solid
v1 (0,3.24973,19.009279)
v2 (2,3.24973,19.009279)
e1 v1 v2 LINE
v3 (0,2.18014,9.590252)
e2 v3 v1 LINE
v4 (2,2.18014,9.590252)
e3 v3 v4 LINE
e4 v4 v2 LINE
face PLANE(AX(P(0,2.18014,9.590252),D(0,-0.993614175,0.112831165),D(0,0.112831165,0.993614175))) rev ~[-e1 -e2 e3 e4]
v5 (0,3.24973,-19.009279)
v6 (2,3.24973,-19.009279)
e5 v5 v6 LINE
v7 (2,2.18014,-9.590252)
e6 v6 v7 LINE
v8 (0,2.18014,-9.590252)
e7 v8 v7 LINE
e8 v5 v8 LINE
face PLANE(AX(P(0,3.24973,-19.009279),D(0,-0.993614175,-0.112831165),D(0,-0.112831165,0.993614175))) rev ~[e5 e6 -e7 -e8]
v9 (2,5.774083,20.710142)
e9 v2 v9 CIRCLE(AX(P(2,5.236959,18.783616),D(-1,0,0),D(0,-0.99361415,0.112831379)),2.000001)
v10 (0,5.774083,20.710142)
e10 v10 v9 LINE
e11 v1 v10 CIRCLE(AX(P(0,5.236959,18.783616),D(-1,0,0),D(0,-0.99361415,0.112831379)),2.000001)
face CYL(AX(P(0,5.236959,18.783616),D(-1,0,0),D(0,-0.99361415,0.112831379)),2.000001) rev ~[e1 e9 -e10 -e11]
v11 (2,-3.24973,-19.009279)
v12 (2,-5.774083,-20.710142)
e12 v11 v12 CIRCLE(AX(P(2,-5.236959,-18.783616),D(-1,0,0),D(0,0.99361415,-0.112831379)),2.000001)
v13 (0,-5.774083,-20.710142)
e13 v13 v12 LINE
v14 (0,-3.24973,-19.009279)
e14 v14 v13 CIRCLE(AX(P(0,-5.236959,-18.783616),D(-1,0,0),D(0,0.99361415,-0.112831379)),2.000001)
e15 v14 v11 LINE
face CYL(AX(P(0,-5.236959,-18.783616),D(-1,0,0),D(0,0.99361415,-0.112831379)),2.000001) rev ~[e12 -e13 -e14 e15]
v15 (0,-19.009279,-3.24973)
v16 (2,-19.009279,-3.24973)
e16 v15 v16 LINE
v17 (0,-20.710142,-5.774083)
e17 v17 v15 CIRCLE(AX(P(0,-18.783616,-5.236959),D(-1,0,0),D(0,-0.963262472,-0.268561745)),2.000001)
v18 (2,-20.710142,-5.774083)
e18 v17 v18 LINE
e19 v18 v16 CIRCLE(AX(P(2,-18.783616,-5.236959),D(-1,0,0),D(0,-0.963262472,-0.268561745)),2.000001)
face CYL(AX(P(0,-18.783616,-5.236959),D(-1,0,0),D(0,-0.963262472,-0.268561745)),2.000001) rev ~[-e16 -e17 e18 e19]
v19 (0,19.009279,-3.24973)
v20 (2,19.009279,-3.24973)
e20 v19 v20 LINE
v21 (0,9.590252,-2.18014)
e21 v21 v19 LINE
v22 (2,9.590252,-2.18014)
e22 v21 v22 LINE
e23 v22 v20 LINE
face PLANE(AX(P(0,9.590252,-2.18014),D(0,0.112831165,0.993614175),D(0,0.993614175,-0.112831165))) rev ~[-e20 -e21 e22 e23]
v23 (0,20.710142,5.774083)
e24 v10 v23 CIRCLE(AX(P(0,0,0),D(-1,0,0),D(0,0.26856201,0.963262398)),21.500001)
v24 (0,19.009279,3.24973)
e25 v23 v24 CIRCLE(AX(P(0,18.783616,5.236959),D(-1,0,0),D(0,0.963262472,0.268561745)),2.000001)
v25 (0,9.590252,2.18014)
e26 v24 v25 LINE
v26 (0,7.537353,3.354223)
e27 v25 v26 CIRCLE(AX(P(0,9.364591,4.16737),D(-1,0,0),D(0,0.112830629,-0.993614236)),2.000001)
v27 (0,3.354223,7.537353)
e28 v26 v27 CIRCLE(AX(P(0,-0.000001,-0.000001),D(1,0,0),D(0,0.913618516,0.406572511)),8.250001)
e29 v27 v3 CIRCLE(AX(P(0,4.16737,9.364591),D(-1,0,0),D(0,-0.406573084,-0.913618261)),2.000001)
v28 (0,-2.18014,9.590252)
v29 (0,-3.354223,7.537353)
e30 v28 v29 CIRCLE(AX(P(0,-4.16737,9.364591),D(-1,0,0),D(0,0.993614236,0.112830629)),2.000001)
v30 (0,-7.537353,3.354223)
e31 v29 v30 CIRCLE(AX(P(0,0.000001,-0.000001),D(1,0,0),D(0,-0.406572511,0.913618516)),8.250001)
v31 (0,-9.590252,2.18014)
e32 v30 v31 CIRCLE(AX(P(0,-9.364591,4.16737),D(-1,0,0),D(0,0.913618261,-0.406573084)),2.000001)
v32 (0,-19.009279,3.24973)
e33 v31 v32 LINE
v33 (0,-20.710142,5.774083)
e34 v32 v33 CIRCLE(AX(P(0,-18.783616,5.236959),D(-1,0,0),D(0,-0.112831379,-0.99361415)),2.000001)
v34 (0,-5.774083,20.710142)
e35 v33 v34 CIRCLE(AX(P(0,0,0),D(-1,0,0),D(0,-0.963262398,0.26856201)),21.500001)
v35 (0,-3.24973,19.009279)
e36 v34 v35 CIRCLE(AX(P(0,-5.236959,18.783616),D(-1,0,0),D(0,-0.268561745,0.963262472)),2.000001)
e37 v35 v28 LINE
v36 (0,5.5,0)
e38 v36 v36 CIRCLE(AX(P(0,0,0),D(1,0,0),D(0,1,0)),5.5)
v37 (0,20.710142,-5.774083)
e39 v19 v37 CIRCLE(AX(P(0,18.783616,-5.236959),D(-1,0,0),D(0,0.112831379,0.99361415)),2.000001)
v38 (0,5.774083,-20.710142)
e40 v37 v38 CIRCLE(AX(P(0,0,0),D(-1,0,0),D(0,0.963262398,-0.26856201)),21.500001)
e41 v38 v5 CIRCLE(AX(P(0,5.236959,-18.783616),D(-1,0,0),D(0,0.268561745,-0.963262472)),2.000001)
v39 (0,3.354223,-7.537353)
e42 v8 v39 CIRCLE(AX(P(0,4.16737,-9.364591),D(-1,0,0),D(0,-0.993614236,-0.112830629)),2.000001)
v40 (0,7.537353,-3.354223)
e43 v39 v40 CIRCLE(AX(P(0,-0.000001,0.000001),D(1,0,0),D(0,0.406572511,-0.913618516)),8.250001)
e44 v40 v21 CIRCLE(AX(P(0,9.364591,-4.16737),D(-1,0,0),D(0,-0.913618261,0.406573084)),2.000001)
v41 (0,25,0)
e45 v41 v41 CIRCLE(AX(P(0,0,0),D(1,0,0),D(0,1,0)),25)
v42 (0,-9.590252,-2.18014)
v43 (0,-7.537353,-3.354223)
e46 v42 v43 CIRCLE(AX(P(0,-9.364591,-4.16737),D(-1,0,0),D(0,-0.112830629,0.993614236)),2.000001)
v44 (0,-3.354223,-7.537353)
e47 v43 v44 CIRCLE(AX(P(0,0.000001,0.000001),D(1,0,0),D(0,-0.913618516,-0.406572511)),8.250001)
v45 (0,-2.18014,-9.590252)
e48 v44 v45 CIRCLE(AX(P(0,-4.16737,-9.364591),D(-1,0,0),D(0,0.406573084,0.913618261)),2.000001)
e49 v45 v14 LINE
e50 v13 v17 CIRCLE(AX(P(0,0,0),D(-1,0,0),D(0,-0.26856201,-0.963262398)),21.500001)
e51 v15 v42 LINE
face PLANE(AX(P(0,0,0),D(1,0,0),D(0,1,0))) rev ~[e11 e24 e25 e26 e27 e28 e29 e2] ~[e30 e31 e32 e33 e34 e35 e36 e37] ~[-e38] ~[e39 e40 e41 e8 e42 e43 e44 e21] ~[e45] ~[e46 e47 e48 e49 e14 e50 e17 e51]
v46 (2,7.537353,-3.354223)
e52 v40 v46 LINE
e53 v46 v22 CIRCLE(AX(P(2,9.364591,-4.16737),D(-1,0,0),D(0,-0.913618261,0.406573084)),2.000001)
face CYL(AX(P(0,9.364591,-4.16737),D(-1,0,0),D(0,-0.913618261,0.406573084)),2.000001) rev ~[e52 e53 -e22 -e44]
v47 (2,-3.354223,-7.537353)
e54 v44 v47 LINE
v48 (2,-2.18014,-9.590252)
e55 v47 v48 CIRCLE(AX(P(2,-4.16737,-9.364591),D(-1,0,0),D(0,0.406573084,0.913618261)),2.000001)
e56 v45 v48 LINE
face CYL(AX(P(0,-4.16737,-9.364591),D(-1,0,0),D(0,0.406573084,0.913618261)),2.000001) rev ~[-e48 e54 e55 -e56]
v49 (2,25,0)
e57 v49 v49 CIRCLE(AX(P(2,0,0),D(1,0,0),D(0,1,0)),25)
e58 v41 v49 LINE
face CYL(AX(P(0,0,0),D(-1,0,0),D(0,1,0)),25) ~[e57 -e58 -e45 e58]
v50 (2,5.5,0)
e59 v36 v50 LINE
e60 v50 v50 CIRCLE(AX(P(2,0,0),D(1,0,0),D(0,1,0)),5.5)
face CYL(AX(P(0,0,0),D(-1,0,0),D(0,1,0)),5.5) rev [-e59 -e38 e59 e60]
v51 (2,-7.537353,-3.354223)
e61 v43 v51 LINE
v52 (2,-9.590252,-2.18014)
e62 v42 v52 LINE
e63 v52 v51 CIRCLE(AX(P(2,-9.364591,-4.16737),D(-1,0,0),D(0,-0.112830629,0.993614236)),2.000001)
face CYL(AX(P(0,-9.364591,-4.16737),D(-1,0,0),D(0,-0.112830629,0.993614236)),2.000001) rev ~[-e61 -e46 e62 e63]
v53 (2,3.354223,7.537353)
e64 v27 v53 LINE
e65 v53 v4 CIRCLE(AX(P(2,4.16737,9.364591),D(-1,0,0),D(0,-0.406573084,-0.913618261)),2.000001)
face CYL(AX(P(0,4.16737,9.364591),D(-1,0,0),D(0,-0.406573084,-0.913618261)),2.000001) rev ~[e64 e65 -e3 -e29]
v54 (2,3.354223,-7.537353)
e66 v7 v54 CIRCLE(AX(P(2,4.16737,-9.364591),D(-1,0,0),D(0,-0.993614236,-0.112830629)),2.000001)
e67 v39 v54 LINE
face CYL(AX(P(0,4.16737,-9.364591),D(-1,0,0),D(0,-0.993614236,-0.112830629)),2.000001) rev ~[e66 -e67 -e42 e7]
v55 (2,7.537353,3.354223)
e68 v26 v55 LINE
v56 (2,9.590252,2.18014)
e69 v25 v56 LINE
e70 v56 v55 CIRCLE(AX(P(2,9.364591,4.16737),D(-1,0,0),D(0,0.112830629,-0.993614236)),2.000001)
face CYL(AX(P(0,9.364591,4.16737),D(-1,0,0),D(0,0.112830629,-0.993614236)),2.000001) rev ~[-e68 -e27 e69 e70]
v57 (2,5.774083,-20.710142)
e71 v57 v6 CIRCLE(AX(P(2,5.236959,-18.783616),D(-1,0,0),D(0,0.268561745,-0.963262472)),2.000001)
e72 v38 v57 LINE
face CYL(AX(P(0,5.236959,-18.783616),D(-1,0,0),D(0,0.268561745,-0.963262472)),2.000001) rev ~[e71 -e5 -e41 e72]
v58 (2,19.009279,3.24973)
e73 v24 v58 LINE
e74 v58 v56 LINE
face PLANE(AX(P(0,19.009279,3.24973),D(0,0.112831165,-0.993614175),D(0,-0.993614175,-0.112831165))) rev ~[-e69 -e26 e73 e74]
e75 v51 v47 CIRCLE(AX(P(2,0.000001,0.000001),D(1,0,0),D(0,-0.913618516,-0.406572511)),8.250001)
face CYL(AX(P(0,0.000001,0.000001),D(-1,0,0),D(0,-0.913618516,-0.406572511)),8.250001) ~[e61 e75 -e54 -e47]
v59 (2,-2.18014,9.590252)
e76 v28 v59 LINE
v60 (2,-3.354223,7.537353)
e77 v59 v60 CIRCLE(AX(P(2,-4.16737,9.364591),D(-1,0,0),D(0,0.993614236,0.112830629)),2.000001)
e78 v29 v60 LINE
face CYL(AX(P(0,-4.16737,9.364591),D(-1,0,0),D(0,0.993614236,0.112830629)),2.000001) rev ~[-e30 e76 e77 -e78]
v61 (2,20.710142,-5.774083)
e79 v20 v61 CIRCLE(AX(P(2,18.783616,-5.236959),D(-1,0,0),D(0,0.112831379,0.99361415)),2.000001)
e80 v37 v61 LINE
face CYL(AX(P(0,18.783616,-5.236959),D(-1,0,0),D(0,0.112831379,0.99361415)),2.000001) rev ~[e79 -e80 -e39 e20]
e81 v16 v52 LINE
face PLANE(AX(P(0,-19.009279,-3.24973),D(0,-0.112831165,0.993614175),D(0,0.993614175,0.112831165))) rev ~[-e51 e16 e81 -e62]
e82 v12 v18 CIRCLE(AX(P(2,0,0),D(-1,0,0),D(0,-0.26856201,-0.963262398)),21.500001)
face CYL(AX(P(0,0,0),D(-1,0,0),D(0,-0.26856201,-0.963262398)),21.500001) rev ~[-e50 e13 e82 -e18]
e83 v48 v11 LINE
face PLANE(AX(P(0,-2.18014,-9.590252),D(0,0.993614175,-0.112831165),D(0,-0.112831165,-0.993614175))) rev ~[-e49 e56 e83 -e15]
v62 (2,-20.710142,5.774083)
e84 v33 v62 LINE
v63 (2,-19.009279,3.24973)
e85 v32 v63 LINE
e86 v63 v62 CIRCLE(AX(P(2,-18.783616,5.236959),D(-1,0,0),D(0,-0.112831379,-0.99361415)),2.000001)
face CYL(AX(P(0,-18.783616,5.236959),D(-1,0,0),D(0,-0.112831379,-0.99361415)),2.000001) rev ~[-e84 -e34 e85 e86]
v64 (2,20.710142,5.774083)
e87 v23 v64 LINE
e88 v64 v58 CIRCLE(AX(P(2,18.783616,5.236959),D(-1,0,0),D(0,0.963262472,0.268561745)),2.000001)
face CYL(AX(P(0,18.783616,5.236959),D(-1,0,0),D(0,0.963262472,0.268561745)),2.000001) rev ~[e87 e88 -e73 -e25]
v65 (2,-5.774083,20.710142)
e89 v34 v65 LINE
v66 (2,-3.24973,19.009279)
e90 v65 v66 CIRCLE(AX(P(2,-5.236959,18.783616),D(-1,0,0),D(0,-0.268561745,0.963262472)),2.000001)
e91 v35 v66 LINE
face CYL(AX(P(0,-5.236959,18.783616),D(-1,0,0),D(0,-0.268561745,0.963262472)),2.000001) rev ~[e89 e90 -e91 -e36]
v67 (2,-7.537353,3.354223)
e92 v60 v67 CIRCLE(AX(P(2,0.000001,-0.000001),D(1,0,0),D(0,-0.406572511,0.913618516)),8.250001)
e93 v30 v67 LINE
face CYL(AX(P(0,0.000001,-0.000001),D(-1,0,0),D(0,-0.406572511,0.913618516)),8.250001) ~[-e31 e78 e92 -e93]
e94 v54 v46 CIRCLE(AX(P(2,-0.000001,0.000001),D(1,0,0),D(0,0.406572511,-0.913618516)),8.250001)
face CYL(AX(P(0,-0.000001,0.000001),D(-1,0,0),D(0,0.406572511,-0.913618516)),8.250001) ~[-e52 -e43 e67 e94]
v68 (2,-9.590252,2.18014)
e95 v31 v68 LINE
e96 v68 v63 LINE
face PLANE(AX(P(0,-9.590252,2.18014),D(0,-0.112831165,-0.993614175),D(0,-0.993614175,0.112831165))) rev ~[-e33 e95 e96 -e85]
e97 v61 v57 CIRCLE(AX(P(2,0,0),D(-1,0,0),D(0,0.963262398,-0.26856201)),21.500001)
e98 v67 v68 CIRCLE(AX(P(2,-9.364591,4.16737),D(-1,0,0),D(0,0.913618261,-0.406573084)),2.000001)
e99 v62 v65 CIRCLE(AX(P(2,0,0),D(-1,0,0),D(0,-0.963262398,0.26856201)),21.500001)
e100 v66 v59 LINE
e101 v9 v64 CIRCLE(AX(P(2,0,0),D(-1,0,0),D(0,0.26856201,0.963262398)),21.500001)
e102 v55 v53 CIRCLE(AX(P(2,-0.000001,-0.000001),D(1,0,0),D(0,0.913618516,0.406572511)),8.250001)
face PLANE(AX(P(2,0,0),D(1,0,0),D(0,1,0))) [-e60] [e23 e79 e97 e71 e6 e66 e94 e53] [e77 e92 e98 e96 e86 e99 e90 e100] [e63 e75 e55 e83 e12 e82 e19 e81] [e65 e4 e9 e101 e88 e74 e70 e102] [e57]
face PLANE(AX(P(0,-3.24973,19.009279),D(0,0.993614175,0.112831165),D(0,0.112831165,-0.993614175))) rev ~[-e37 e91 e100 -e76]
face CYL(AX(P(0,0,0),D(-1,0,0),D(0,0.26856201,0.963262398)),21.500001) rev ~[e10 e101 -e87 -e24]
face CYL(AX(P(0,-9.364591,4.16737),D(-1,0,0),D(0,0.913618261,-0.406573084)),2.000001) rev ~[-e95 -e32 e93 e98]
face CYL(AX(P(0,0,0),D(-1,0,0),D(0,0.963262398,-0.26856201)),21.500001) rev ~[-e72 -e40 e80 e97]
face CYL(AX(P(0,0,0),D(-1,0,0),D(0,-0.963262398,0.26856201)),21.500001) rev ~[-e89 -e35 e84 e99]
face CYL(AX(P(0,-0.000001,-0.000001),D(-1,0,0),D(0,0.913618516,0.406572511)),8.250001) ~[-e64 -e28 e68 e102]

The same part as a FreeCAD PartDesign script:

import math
import FreeCAD as App
import Part
import Sketcher

V = App.Vector

doc = App.newDocument("Part")
body = doc.addObject("PartDesign::Body", "Body")

# Sketch on YZ plane
sketch1 = doc.addObject("Sketcher::SketchObject", "Sketch")
body.addObject(sketch1)
sketch1.AttachmentSupport = (doc.YZ_Plane, [""])
sketch1.MapMode = "FlatFace"
sketch1.addGeometry(Part.Circle(V(0, 0, 0), V(0, 0, 1), 25), False)
sketch1.addGeometry(Part.ArcOfCircle(Part.Circle(V(0, 0, 0), V(0, 0, 1), 21.500001), math.radians(-164.421284), math.radians(-105.578716)), False)
sketch1.addGeometry(Part.ArcOfCircle(Part.Circle(V(-18.783616, -5.236959, 0), V(0, 0, 1), 2.000001), math.radians(96.478558), math.radians(195.5787)), False)
sketch1.addGeometry(Part.LineSegment(V(-19.009279, -3.24973, 0), V(-9.590252, -2.18014, 0)), False)
sketch1.addGeometry(Part.ArcOfCircle(Part.Circle(V(-9.364591, -4.16737, 0), V(0, 0, 1), 2.000001), math.radians(23.989742), math.radians(96.478515)), False)
sketch1.addGeometry(Part.ArcOfCircle(Part.Circle(V(0.000001, 0.000001, 0), V(0, 0, 1), 8.250001), math.radians(-156.010294), math.radians(-113.989706)), False)
sketch1.addGeometry(Part.ArcOfCircle(Part.Circle(V(-4.16737, -9.364591, 0), V(0, 0, 1), 2.000001), math.radians(-6.478515), math.radians(66.010258)), False)
sketch1.addGeometry(Part.LineSegment(V(-2.18014, -9.590252, 0), V(-3.24973, -19.009279, 0)), False)
sketch1.addGeometry(Part.ArcOfCircle(Part.Circle(V(-5.236959, -18.783616, 0), V(0, 0, 1), 2.000001), math.radians(-105.5787), math.radians(-6.478558)), False)
sketch1.addGeometry(Part.ArcOfCircle(Part.Circle(V(0, 0, 0), V(0, 0, 1), 21.500001), math.radians(-74.421284), math.radians(-15.578716)), False)
sketch1.addGeometry(Part.ArcOfCircle(Part.Circle(V(5.236959, -18.783616, 0), V(0, 0, 1), 2.000001), math.radians(-173.521442), math.radians(-74.4213)), False)
sketch1.addGeometry(Part.LineSegment(V(3.24973, -19.009279, 0), V(2.18014, -9.590252, 0)), False)
sketch1.addGeometry(Part.ArcOfCircle(Part.Circle(V(4.16737, -9.364591, 0), V(0, 0, 1), 2.000001), math.radians(113.989742), math.radians(186.478515)), False)
sketch1.addGeometry(Part.ArcOfCircle(Part.Circle(V(-0.000001, 0.000001, 0), V(0, 0, 1), 8.250001), math.radians(-66.010294), math.radians(-23.989706)), False)
sketch1.addGeometry(Part.ArcOfCircle(Part.Circle(V(9.364591, -4.16737, 0), V(0, 0, 1), 2.000001), math.radians(83.521485), math.radians(156.010258)), False)
sketch1.addGeometry(Part.LineSegment(V(9.590252, -2.18014, 0), V(19.009279, -3.24973, 0)), False)
sketch1.addGeometry(Part.ArcOfCircle(Part.Circle(V(18.783616, -5.236959, 0), V(0, 0, 1), 2.000001), math.radians(-15.5787), math.radians(83.521442)), False)
sketch1.addGeometry(Part.ArcOfCircle(Part.Circle(V(-18.783616, 5.236959, 0), V(0, 0, 1), 2.000001), math.radians(164.4213), math.radians(263.521442)), False)
sketch1.addGeometry(Part.ArcOfCircle(Part.Circle(V(0, 0, 0), V(0, 0, 1), 21.500001), math.radians(105.578716), math.radians(164.421284)), False)
sketch1.addGeometry(Part.ArcOfCircle(Part.Circle(V(-5.236959, 18.783616, 0), V(0, 0, 1), 2.000001), math.radians(6.478558), math.radians(105.5787)), False)
sketch1.addGeometry(Part.LineSegment(V(-3.24973, 19.009279, 0), V(-2.18014, 9.590252, 0)), False)
sketch1.addGeometry(Part.ArcOfCircle(Part.Circle(V(-4.16737, 9.364591, 0), V(0, 0, 1), 2.000001), math.radians(-66.010258), math.radians(6.478515)), False)
sketch1.addGeometry(Part.ArcOfCircle(Part.Circle(V(0.000001, -0.000001, 0), V(0, 0, 1), 8.250001), math.radians(113.989706), math.radians(156.010294)), False)
sketch1.addGeometry(Part.ArcOfCircle(Part.Circle(V(-9.364591, 4.16737, 0), V(0, 0, 1), 2.000001), math.radians(-96.478515), math.radians(-23.989742)), False)
sketch1.addGeometry(Part.LineSegment(V(-9.590252, 2.18014, 0), V(-19.009279, 3.24973, 0)), False)
sketch1.addGeometry(Part.Circle(V(0, 0, 0), V(0, 0, 1), 5.5), False)
sketch1.addGeometry(Part.ArcOfCircle(Part.Circle(V(4.16737, 9.364591, 0), V(0, 0, 1), 2.000001), math.radians(173.521485), math.radians(246.010258)), False)
sketch1.addGeometry(Part.LineSegment(V(2.18014, 9.590252, 0), V(3.24973, 19.009279, 0)), False)
sketch1.addGeometry(Part.ArcOfCircle(Part.Circle(V(5.236959, 18.783616, 0), V(0, 0, 1), 2.000001), math.radians(74.4213), math.radians(173.521442)), False)
sketch1.addGeometry(Part.ArcOfCircle(Part.Circle(V(0, 0, 0), V(0, 0, 1), 21.500001), math.radians(15.578716), math.radians(74.421284)), False)
sketch1.addGeometry(Part.ArcOfCircle(Part.Circle(V(18.783616, 5.236959, 0), V(0, 0, 1), 2.000001), math.radians(-83.521442), math.radians(15.5787)), False)
sketch1.addGeometry(Part.LineSegment(V(19.009279, 3.24973, 0), V(9.590252, 2.18014, 0)), False)
sketch1.addGeometry(Part.ArcOfCircle(Part.Circle(V(9.364591, 4.16737, 0), V(0, 0, 1), 2.000001), math.radians(-156.010258), math.radians(-83.521485)), False)
sketch1.addGeometry(Part.ArcOfCircle(Part.Circle(V(-0.000001, -0.000001, 0), V(0, 0, 1), 8.250001), math.radians(23.989706), math.radians(66.010294)), False)
sketch1.addConstraint(Sketcher.Constraint("Tangent", 1, 1, 2, 2))
sketch1.addConstraint(Sketcher.Constraint("Tangent", 2, 1, 3, 1))
sketch1.addConstraint(Sketcher.Constraint("Tangent", 3, 2, 4, 2))
sketch1.addConstraint(Sketcher.Constraint("Tangent", 4, 1, 5, 1))
sketch1.addConstraint(Sketcher.Constraint("Tangent", 5, 2, 6, 2))
sketch1.addConstraint(Sketcher.Constraint("Tangent", 6, 1, 7, 1))
sketch1.addConstraint(Sketcher.Constraint("Tangent", 7, 2, 8, 2))
sketch1.addConstraint(Sketcher.Constraint("Tangent", 8, 1, 1, 2))
sketch1.addConstraint(Sketcher.Constraint("Tangent", 9, 1, 10, 2))
sketch1.addConstraint(Sketcher.Constraint("Tangent", 10, 1, 11, 1))
sketch1.addConstraint(Sketcher.Constraint("Tangent", 11, 2, 12, 2))
sketch1.addConstraint(Sketcher.Constraint("Tangent", 12, 1, 13, 1))
sketch1.addConstraint(Sketcher.Constraint("Tangent", 13, 2, 14, 2))
sketch1.addConstraint(Sketcher.Constraint("Tangent", 14, 1, 15, 1))
sketch1.addConstraint(Sketcher.Constraint("Tangent", 15, 2, 16, 2))
sketch1.addConstraint(Sketcher.Constraint("Tangent", 16, 1, 9, 2))
sketch1.addConstraint(Sketcher.Constraint("Tangent", 17, 1, 18, 2))
sketch1.addConstraint(Sketcher.Constraint("Tangent", 18, 1, 19, 2))
sketch1.addConstraint(Sketcher.Constraint("Tangent", 19, 1, 20, 1))
sketch1.addConstraint(Sketcher.Constraint("Tangent", 20, 2, 21, 2))
sketch1.addConstraint(Sketcher.Constraint("Tangent", 21, 1, 22, 1))
sketch1.addConstraint(Sketcher.Constraint("Tangent", 22, 2, 23, 2))
sketch1.addConstraint(Sketcher.Constraint("Tangent", 23, 1, 24, 1))
sketch1.addConstraint(Sketcher.Constraint("Tangent", 24, 2, 17, 2))
sketch1.addConstraint(Sketcher.Constraint("Tangent", 26, 1, 27, 1))
sketch1.addConstraint(Sketcher.Constraint("Tangent", 27, 2, 28, 2))
sketch1.addConstraint(Sketcher.Constraint("Tangent", 28, 1, 29, 2))
sketch1.addConstraint(Sketcher.Constraint("Tangent", 29, 1, 30, 2))
sketch1.addConstraint(Sketcher.Constraint("Tangent", 30, 1, 31, 1))
sketch1.addConstraint(Sketcher.Constraint("Tangent", 31, 2, 32, 2))
sketch1.addConstraint(Sketcher.Constraint("Tangent", 32, 1, 33, 1))
sketch1.addConstraint(Sketcher.Constraint("Tangent", 33, 2, 26, 2))
sketch1.addConstraint(Sketcher.Constraint("Coincident", 0, 3, -1, 1))
sketch1.addConstraint(Sketcher.Constraint("Coincident", 1, 3, -1, 1))
sketch1.addConstraint(Sketcher.Constraint("Coincident", 5, 3, -1, 1))
sketch1.addConstraint(Sketcher.Constraint("Coincident", 9, 3, -1, 1))
sketch1.addConstraint(Sketcher.Constraint("Coincident", 13, 3, -1, 1))
sketch1.addConstraint(Sketcher.Constraint("Coincident", 18, 3, -1, 1))
sketch1.addConstraint(Sketcher.Constraint("Coincident", 22, 3, -1, 1))
sketch1.addConstraint(Sketcher.Constraint("Coincident", 25, 3, -1, 1))
sketch1.addConstraint(Sketcher.Constraint("Coincident", 29, 3, -1, 1))
sketch1.addConstraint(Sketcher.Constraint("Coincident", 33, 3, -1, 1))
sketch1.addConstraint(Sketcher.Constraint("Equal", 2, 4))
sketch1.addConstraint(Sketcher.Constraint("Equal", 4, 6))
sketch1.addConstraint(Sketcher.Constraint("Equal", 6, 8))
sketch1.addConstraint(Sketcher.Constraint("Equal", 1, 9))
sketch1.addConstraint(Sketcher.Constraint("Equal", 8, 10))
sketch1.addConstraint(Sketcher.Constraint("Equal", 10, 12))
sketch1.addConstraint(Sketcher.Constraint("Equal", 5, 13))
sketch1.addConstraint(Sketcher.Constraint("Equal", 12, 14))
sketch1.addConstraint(Sketcher.Constraint("Equal", 14, 16))
sketch1.addConstraint(Sketcher.Constraint("Equal", 16, 17))
sketch1.addConstraint(Sketcher.Constraint("Equal", 9, 18))
sketch1.addConstraint(Sketcher.Constraint("Equal", 17, 19))
sketch1.addConstraint(Sketcher.Constraint("Equal", 19, 21))
sketch1.addConstraint(Sketcher.Constraint("Equal", 13, 22))
sketch1.addConstraint(Sketcher.Constraint("Equal", 21, 23))
sketch1.addConstraint(Sketcher.Constraint("Equal", 23, 26))
sketch1.addConstraint(Sketcher.Constraint("Equal", 26, 28))
sketch1.addConstraint(Sketcher.Constraint("Equal", 18, 29))
sketch1.addConstraint(Sketcher.Constraint("Equal", 28, 30))
sketch1.addConstraint(Sketcher.Constraint("Equal", 30, 32))
sketch1.addConstraint(Sketcher.Constraint("Equal", 22, 33))
sketch1.addConstraint(Sketcher.Constraint("Symmetric", 10, 1, 19, 1, -1, 1))
sketch1.addConstraint(Sketcher.Constraint("Symmetric", 14, 1, 23, 1, -1, 1))
sketch1.addConstraint(Sketcher.Constraint("Symmetric", 6, 1, 26, 1, -1, 1))
sketch1.addConstraint(Sketcher.Constraint("Symmetric", 2, 1, 30, 1, -1, 1))
sketch1.addConstraint(Sketcher.Constraint("Symmetric", 7, 2, 10, 1, -2))
sketch1.addConstraint(Sketcher.Constraint("Symmetric", 3, 2, 14, 1, -2))
sketch1.addConstraint(Sketcher.Constraint("Perpendicular", 3, 11))
sketch1.addConstraint(Sketcher.Constraint("Equal", 3, 7))
sketch1.addConstraint(Sketcher.Constraint("Diameter", 0, 50.0))
sketch1.addConstraint(Sketcher.Constraint("Diameter", 25, 11.0))
sketch1.addConstraint(Sketcher.Constraint("Radius", 2, 2.000001))
sketch1.addConstraint(Sketcher.Constraint("Radius", 1, 21.500001))
sketch1.addConstraint(Sketcher.Constraint("Radius", 5, 8.250001))
sketch1.addConstraint(Sketcher.Constraint("DistanceY", 2, 1, 23, 3, 7.4171))
sketch1.addConstraint(Sketcher.Constraint("DistanceX", 3, 2, 4, 1, 2.052899))
pad1 = doc.addObject("PartDesign::Pad", "Pad")
body.addObject(pad1)
pad1.Profile = sketch1
pad1.Length = 2

doc.recompute()
